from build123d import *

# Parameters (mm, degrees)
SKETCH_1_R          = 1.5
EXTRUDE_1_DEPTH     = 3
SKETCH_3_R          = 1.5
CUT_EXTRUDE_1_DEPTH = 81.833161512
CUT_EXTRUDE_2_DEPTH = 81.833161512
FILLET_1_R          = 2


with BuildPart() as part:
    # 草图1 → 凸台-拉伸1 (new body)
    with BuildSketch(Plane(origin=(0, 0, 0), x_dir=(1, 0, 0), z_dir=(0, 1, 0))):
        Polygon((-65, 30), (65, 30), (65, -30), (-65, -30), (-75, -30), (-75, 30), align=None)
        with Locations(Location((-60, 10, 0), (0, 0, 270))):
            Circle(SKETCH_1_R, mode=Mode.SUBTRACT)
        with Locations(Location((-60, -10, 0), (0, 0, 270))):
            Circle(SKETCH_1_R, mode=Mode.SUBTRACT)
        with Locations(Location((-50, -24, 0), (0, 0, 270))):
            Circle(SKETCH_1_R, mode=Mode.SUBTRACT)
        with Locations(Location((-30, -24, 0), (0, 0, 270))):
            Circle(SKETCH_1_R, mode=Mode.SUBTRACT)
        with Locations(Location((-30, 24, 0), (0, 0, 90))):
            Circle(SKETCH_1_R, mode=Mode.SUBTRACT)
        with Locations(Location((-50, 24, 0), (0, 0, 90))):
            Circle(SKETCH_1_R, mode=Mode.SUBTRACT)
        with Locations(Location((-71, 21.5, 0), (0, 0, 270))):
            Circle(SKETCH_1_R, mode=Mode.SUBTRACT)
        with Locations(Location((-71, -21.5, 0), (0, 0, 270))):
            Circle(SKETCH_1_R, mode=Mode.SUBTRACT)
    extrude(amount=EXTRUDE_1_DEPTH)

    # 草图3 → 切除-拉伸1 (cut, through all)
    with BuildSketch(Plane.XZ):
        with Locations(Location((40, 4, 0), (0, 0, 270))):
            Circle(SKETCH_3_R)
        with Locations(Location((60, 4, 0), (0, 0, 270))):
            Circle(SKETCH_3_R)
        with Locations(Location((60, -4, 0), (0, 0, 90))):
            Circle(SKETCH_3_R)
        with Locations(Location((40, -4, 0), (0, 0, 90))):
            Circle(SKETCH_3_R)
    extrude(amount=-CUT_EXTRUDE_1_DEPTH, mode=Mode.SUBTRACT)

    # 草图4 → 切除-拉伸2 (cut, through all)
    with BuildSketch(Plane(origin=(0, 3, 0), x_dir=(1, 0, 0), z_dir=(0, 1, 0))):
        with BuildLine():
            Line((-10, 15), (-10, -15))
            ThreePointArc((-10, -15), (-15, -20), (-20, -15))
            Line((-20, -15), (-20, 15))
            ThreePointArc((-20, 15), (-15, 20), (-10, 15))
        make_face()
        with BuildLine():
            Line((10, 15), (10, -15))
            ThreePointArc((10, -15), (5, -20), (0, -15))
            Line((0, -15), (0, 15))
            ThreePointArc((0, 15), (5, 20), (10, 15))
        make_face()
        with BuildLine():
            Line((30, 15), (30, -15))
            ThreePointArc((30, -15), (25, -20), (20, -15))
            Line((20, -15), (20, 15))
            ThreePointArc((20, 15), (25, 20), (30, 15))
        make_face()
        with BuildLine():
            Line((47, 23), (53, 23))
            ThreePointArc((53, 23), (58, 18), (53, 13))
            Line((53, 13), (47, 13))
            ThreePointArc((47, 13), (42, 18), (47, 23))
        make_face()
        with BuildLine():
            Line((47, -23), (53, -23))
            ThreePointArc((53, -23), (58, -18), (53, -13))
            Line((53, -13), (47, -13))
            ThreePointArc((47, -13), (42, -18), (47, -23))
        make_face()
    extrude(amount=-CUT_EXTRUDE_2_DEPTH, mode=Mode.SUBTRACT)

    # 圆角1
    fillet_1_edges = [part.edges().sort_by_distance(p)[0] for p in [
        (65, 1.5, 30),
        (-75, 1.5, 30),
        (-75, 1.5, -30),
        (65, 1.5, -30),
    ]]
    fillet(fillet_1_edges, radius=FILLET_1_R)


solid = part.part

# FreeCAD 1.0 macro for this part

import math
import FreeCAD as App
import Part
import Sketcher

V = App.Vector


def edges_at(feature, points):
    """Names of the edges that pass closest to the given points."""
    edges = feature.Shape.Edges
    near = lambda p: min(range(len(edges)), key=lambda i: edges[i].distToShape(Part.Vertex(*p))[0])
    return sorted({f"Edge{near(p) + 1}" for p in points})

doc = App.newDocument("Part")
body = doc.addObject("PartDesign::Body", "Body")

sketch1 = body.newObject("Sketcher::SketchObject", "Sketch")
sketch1.AttachmentSupport = (doc.getObject("XZ_Plane"), [""])
sketch1.MapMode = "FlatFace"
sketch1.addGeometry([
    Part.LineSegment(V(65, -30, 0), V(-75, -30, 0)),
    Part.LineSegment(V(-75, -30, 0), V(-75, 30, 0)),
    Part.LineSegment(V(-75, 30, 0), V(65, 30, 0)),
    Part.LineSegment(V(65, 30, 0), V(65, -30, 0)),
    Part.Circle(V(-30, 24, 0), V(0, 0, 1), 1.5),
    Part.Circle(V(-50, 24, 0), V(0, 0, 1), 1.5),
    Part.Circle(V(-71, 21.5, 0), V(0, 0, 1), 1.5),
    Part.Circle(V(-60, 10, 0), V(0, 0, 1), 1.5),
    Part.Circle(V(-30, -24, 0), V(0, 0, 1), 1.5),
    Part.Circle(V(-50, -24, 0), V(0, 0, 1), 1.5),
    Part.Circle(V(-60, -10, 0), V(0, 0, 1), 1.5),
    Part.Circle(V(-71, -21.5, 0), V(0, 0, 1), 1.5),
], False)
sketch1.addConstraint([
    Sketcher.Constraint("Coincident", 0, 2, 1, 1),
    Sketcher.Constraint("Coincident", 1, 2, 2, 1),
    Sketcher.Constraint("Coincident", 2, 2, 3, 1),
    Sketcher.Constraint("Coincident", 3, 2, 0, 1),
    Sketcher.Constraint("Horizontal", 0),
    Sketcher.Constraint("Vertical", 1),
    Sketcher.Constraint("Horizontal", 2),
    Sketcher.Constraint("Vertical", 3),
    Sketcher.Constraint("Equal", 4, 5),
    Sketcher.Constraint("Equal", 5, 6),
    Sketcher.Constraint("Equal", 6, 7),
    Sketcher.Constraint("Equal", 7, 8),
    Sketcher.Constraint("Equal", 8, 9),
    Sketcher.Constraint("Equal", 9, 10),
    Sketcher.Constraint("Equal", 10, 11),
    Sketcher.Constraint("Symmetric", 4, 3, 8, 3, -1),
    Sketcher.Constraint("Symmetric", 5, 3, 9, 3, -1),
    Sketcher.Constraint("Symmetric", 7, 3, 10, 3, -1),
    Sketcher.Constraint("Symmetric", 6, 3, 11, 3, -1),
    Sketcher.Constraint("Horizontal", 4, 3, 5, 3),
    Sketcher.Constraint("Diameter", 4, 3.0),
    Sketcher.Constraint("DistanceX", 0, 2, 0, 1, 140.0),
    Sketcher.Constraint("DistanceY", 1, 1, 1, 2, 60.0),
    Sketcher.Constraint("DistanceX", 4, 3, -1, 1, 30.0),
    Sketcher.Constraint("DistanceY", -1, 1, 4, 3, 24.0),
    Sketcher.Constraint("DistanceX", 5, 3, -1, 1, 50.0),
    Sketcher.Constraint("DistanceX", 6, 3, -1, 1, 71.0),
    Sketcher.Constraint("DistanceX", 7, 3, -1, 1, 60.0),
    Sketcher.Constraint("DistanceY", -1, 1, 7, 3, 10.0),
    Sketcher.Constraint("DistanceX", 0, 2, -1, 1, 75.0),
    Sketcher.Constraint("DistanceY", 0, 2, -1, 1, 30.0),
    Sketcher.Constraint("DistanceY", 11, 3, 6, 3, 43.0),
])
pad1 = body.newObject("PartDesign::Pad", "Pad")
pad1.Profile = sketch1
pad1.Length = 3
pad1.Reversed = True

sketch2 = body.newObject("Sketcher::SketchObject", "Sketch001")
sketch2.AttachmentSupport = (doc.getObject("XZ_Plane"), [""])
sketch2.MapMode = "FlatFace"
sketch2.addGeometry([
    Part.Circle(V(40, 4, 0), V(0, 0, 1), 1.5),
    Part.Circle(V(60, 4, 0), V(0, 0, 1), 1.5),
    Part.Circle(V(60, -4, 0), V(0, 0, 1), 1.5),
    Part.Circle(V(40, -4, 0), V(0, 0, 1), 1.5),
], False)
sketch2.addConstraint([
    Sketcher.Constraint("Equal", 0, 1),
    Sketcher.Constraint("Equal", 1, 2),
    Sketcher.Constraint("Equal", 2, 3),
    Sketcher.Constraint("Symmetric", 1, 3, 2, 3, -1),
    Sketcher.Constraint("Symmetric", 0, 3, 3, 3, -1),
    Sketcher.Constraint("Horizontal", 0, 3, 1, 3),
    Sketcher.Constraint("Diameter", 0, 3.0),
    Sketcher.Constraint("DistanceX", -1, 1, 0, 3, 40.0),
    Sketcher.Constraint("DistanceY", -1, 1, 0, 3, 4.0),
    Sketcher.Constraint("DistanceX", -1, 1, 1, 3, 60.0),
])
pocket1 = body.newObject("PartDesign::Pocket", "Pocket")
pocket1.Profile = sketch2
pocket1.Type = "ThroughAll"

sketch3 = body.newObject("Sketcher::SketchObject", "Sketch002")
sketch3.AttachmentSupport = (doc.getObject("XZ_Plane"), [""])
sketch3.MapMode = "FlatFace"
sketch3.AttachmentOffset = App.Placement(V(0, 0, -3), App.Rotation())
sketch3.addGeometry([
    Part.LineSegment(V(-10, 15, 0), V(-10, -15, 0)),
    Part.ArcOfCircle(Part.Circle(V(-15, -15, 0), V(0, 0, 1), 5), math.radians(180), math.radians(360)),
    Part.LineSegment(V(-20, -15, 0), V(-20, 15, 0)),
    Part.ArcOfCircle(Part.Circle(V(-15, 15, 0), V(0, 0, 1), 5), math.radians(0), math.radians(180)),
    Part.LineSegment(V(10, 15, 0), V(10, -15, 0)),
    Part.ArcOfCircle(Part.Circle(V(5, -15, 0), V(0, 0, 1), 5), math.radians(180), math.radians(360)),
    Part.LineSegment(V(0, -15, 0), V(0, 15, 0)),
    Part.ArcOfCircle(Part.Circle(V(5, 15, 0), V(0, 0, 1), 5), math.radians(0), math.radians(180)),
    Part.LineSegment(V(30, 15, 0), V(30, -15, 0)),
    Part.ArcOfCircle(Part.Circle(V(25, -15, 0), V(0, 0, 1), 5), math.radians(180), math.radians(360)),
    Part.LineSegment(V(20, -15, 0), V(20, 15, 0)),
    Part.ArcOfCircle(Part.Circle(V(25, 15, 0), V(0, 0, 1), 5), math.radians(0), math.radians(180)),
    Part.LineSegment(V(53, -23, 0), V(47, -23, 0)),
    Part.ArcOfCircle(Part.Circle(V(47, -18, 0), V(0, 0, 1), 5), math.radians(90), math.radians(270)),
    Part.LineSegment(V(47, -13, 0), V(53, -13, 0)),
    Part.ArcOfCircle(Part.Circle(V(53, -18, 0), V(0, 0, 1), 5), math.radians(-90), math.radians(90)),
    Part.LineSegment(V(47, 23, 0), V(53, 23, 0)),
    Part.ArcOfCircle(Part.Circle(V(53, 18, 0), V(0, 0, 1), 5), math.radians(-90), math.radians(90)),
    Part.LineSegment(V(53, 13, 0), V(47, 13, 0)),
    Part.ArcOfCircle(Part.Circle(V(47, 18, 0), V(0, 0, 1), 5), math.radians(90), math.radians(270)),
], False)
sketch3.addConstraint([
    Sketcher.Constraint("Tangent", 0, 2, 1, 2),
    Sketcher.Constraint("Tangent", 1, 1, 2, 1),
    Sketcher.Constraint("Tangent", 2, 2, 3, 2),
    Sketcher.Constraint("Tangent", 3, 1, 0, 1),
    Sketcher.Constraint("Tangent", 4, 2, 5, 2),
    Sketcher.Constraint("Tangent", 5, 1, 6, 1),
    Sketcher.Constraint("Tangent", 6, 2, 7, 2),
    Sketcher.Constraint("Tangent", 7, 1, 4, 1),
    Sketcher.Constraint("Tangent", 8, 2, 9, 2),
    Sketcher.Constraint("Tangent", 9, 1, 10, 1),
    Sketcher.Constraint("Tangent", 10, 2, 11, 2),
    Sketcher.Constraint("Tangent", 11, 1, 8, 1),
    Sketcher.Constraint("Tangent", 12, 2, 13, 2),
    Sketcher.Constraint("Tangent", 13, 1, 14, 1),
    Sketcher.Constraint("Tangent", 14, 2, 15, 2),
    Sketcher.Constraint("Tangent", 15, 1, 12, 1),
    Sketcher.Constraint("Tangent", 16, 2, 17, 2),
    Sketcher.Constraint("Tangent", 17, 1, 18, 1),
    Sketcher.Constraint("Tangent", 18, 2, 19, 2),
    Sketcher.Constraint("Tangent", 19, 1, 16, 1),
    Sketcher.Constraint("Vertical", 0),
    Sketcher.Constraint("Vertical", 2),
    Sketcher.Constraint("Vertical", 4),
    Sketcher.Constraint("Vertical", 6),
    Sketcher.Constraint("Vertical", 8),
    Sketcher.Constraint("Vertical", 10),
    Sketcher.Constraint("Horizontal", 12),
    Sketcher.Constraint("Horizontal", 14),
    Sketcher.Constraint("Horizontal", 16),
    Sketcher.Constraint("Horizontal", 18),
    Sketcher.Constraint("Equal", 3, 5),
    Sketcher.Constraint("Equal", 7, 9),
    Sketcher.Constraint("Equal", 11, 13),
    Sketcher.Constraint("Equal", 15, 17),
    Sketcher.Constraint("Symmetric", 3, 1, 4, 2, -1, 1),
    Sketcher.Constraint("Symmetric", 5, 1, 6, 2, -1, 1),
    Sketcher.Constraint("Symmetric", 2, 2, 9, 1, -1, 1),
    Sketcher.Constraint("Symmetric", 15, 3, 17, 3, -1),
    Sketcher.Constraint("Horizontal", 1, 3, 5, 3),
    Sketcher.Constraint("Horizontal", 7, 3, 11, 3),
    Sketcher.Constraint("Vertical", 13, 3, 19, 3),
    Sketcher.Constraint("Radius", 1, 5.0),
    Sketcher.Constraint("DistanceX", 12, 2, 12, 1, 6.0),
    Sketcher.Constraint("DistanceY", 0, 2, 0, 1, 30.0),
    Sketcher.Constraint("DistanceX", -1, 1, 13, 3, 47.0),
    Sketcher.Constraint("DistanceY", 13, 3, -1, 1, 18.0),
])
pocket2 = body.newObject("PartDesign::Pocket", "Pocket001")
pocket2.Profile = sketch3
pocket2.Type = "ThroughAll"
pocket2.Reversed = True
doc.recompute()

fillet = body.newObject("PartDesign::Fillet", "Fillet")
fillet.Base = (pocket2, edges_at(pocket2, [
    (65, 1.5, 30),
    (-75, 1.5, 30),
    (-75, 1.5, -30),
    (65, 1.5, -30),
]))
fillet.Radius = 2

doc.recompute()
